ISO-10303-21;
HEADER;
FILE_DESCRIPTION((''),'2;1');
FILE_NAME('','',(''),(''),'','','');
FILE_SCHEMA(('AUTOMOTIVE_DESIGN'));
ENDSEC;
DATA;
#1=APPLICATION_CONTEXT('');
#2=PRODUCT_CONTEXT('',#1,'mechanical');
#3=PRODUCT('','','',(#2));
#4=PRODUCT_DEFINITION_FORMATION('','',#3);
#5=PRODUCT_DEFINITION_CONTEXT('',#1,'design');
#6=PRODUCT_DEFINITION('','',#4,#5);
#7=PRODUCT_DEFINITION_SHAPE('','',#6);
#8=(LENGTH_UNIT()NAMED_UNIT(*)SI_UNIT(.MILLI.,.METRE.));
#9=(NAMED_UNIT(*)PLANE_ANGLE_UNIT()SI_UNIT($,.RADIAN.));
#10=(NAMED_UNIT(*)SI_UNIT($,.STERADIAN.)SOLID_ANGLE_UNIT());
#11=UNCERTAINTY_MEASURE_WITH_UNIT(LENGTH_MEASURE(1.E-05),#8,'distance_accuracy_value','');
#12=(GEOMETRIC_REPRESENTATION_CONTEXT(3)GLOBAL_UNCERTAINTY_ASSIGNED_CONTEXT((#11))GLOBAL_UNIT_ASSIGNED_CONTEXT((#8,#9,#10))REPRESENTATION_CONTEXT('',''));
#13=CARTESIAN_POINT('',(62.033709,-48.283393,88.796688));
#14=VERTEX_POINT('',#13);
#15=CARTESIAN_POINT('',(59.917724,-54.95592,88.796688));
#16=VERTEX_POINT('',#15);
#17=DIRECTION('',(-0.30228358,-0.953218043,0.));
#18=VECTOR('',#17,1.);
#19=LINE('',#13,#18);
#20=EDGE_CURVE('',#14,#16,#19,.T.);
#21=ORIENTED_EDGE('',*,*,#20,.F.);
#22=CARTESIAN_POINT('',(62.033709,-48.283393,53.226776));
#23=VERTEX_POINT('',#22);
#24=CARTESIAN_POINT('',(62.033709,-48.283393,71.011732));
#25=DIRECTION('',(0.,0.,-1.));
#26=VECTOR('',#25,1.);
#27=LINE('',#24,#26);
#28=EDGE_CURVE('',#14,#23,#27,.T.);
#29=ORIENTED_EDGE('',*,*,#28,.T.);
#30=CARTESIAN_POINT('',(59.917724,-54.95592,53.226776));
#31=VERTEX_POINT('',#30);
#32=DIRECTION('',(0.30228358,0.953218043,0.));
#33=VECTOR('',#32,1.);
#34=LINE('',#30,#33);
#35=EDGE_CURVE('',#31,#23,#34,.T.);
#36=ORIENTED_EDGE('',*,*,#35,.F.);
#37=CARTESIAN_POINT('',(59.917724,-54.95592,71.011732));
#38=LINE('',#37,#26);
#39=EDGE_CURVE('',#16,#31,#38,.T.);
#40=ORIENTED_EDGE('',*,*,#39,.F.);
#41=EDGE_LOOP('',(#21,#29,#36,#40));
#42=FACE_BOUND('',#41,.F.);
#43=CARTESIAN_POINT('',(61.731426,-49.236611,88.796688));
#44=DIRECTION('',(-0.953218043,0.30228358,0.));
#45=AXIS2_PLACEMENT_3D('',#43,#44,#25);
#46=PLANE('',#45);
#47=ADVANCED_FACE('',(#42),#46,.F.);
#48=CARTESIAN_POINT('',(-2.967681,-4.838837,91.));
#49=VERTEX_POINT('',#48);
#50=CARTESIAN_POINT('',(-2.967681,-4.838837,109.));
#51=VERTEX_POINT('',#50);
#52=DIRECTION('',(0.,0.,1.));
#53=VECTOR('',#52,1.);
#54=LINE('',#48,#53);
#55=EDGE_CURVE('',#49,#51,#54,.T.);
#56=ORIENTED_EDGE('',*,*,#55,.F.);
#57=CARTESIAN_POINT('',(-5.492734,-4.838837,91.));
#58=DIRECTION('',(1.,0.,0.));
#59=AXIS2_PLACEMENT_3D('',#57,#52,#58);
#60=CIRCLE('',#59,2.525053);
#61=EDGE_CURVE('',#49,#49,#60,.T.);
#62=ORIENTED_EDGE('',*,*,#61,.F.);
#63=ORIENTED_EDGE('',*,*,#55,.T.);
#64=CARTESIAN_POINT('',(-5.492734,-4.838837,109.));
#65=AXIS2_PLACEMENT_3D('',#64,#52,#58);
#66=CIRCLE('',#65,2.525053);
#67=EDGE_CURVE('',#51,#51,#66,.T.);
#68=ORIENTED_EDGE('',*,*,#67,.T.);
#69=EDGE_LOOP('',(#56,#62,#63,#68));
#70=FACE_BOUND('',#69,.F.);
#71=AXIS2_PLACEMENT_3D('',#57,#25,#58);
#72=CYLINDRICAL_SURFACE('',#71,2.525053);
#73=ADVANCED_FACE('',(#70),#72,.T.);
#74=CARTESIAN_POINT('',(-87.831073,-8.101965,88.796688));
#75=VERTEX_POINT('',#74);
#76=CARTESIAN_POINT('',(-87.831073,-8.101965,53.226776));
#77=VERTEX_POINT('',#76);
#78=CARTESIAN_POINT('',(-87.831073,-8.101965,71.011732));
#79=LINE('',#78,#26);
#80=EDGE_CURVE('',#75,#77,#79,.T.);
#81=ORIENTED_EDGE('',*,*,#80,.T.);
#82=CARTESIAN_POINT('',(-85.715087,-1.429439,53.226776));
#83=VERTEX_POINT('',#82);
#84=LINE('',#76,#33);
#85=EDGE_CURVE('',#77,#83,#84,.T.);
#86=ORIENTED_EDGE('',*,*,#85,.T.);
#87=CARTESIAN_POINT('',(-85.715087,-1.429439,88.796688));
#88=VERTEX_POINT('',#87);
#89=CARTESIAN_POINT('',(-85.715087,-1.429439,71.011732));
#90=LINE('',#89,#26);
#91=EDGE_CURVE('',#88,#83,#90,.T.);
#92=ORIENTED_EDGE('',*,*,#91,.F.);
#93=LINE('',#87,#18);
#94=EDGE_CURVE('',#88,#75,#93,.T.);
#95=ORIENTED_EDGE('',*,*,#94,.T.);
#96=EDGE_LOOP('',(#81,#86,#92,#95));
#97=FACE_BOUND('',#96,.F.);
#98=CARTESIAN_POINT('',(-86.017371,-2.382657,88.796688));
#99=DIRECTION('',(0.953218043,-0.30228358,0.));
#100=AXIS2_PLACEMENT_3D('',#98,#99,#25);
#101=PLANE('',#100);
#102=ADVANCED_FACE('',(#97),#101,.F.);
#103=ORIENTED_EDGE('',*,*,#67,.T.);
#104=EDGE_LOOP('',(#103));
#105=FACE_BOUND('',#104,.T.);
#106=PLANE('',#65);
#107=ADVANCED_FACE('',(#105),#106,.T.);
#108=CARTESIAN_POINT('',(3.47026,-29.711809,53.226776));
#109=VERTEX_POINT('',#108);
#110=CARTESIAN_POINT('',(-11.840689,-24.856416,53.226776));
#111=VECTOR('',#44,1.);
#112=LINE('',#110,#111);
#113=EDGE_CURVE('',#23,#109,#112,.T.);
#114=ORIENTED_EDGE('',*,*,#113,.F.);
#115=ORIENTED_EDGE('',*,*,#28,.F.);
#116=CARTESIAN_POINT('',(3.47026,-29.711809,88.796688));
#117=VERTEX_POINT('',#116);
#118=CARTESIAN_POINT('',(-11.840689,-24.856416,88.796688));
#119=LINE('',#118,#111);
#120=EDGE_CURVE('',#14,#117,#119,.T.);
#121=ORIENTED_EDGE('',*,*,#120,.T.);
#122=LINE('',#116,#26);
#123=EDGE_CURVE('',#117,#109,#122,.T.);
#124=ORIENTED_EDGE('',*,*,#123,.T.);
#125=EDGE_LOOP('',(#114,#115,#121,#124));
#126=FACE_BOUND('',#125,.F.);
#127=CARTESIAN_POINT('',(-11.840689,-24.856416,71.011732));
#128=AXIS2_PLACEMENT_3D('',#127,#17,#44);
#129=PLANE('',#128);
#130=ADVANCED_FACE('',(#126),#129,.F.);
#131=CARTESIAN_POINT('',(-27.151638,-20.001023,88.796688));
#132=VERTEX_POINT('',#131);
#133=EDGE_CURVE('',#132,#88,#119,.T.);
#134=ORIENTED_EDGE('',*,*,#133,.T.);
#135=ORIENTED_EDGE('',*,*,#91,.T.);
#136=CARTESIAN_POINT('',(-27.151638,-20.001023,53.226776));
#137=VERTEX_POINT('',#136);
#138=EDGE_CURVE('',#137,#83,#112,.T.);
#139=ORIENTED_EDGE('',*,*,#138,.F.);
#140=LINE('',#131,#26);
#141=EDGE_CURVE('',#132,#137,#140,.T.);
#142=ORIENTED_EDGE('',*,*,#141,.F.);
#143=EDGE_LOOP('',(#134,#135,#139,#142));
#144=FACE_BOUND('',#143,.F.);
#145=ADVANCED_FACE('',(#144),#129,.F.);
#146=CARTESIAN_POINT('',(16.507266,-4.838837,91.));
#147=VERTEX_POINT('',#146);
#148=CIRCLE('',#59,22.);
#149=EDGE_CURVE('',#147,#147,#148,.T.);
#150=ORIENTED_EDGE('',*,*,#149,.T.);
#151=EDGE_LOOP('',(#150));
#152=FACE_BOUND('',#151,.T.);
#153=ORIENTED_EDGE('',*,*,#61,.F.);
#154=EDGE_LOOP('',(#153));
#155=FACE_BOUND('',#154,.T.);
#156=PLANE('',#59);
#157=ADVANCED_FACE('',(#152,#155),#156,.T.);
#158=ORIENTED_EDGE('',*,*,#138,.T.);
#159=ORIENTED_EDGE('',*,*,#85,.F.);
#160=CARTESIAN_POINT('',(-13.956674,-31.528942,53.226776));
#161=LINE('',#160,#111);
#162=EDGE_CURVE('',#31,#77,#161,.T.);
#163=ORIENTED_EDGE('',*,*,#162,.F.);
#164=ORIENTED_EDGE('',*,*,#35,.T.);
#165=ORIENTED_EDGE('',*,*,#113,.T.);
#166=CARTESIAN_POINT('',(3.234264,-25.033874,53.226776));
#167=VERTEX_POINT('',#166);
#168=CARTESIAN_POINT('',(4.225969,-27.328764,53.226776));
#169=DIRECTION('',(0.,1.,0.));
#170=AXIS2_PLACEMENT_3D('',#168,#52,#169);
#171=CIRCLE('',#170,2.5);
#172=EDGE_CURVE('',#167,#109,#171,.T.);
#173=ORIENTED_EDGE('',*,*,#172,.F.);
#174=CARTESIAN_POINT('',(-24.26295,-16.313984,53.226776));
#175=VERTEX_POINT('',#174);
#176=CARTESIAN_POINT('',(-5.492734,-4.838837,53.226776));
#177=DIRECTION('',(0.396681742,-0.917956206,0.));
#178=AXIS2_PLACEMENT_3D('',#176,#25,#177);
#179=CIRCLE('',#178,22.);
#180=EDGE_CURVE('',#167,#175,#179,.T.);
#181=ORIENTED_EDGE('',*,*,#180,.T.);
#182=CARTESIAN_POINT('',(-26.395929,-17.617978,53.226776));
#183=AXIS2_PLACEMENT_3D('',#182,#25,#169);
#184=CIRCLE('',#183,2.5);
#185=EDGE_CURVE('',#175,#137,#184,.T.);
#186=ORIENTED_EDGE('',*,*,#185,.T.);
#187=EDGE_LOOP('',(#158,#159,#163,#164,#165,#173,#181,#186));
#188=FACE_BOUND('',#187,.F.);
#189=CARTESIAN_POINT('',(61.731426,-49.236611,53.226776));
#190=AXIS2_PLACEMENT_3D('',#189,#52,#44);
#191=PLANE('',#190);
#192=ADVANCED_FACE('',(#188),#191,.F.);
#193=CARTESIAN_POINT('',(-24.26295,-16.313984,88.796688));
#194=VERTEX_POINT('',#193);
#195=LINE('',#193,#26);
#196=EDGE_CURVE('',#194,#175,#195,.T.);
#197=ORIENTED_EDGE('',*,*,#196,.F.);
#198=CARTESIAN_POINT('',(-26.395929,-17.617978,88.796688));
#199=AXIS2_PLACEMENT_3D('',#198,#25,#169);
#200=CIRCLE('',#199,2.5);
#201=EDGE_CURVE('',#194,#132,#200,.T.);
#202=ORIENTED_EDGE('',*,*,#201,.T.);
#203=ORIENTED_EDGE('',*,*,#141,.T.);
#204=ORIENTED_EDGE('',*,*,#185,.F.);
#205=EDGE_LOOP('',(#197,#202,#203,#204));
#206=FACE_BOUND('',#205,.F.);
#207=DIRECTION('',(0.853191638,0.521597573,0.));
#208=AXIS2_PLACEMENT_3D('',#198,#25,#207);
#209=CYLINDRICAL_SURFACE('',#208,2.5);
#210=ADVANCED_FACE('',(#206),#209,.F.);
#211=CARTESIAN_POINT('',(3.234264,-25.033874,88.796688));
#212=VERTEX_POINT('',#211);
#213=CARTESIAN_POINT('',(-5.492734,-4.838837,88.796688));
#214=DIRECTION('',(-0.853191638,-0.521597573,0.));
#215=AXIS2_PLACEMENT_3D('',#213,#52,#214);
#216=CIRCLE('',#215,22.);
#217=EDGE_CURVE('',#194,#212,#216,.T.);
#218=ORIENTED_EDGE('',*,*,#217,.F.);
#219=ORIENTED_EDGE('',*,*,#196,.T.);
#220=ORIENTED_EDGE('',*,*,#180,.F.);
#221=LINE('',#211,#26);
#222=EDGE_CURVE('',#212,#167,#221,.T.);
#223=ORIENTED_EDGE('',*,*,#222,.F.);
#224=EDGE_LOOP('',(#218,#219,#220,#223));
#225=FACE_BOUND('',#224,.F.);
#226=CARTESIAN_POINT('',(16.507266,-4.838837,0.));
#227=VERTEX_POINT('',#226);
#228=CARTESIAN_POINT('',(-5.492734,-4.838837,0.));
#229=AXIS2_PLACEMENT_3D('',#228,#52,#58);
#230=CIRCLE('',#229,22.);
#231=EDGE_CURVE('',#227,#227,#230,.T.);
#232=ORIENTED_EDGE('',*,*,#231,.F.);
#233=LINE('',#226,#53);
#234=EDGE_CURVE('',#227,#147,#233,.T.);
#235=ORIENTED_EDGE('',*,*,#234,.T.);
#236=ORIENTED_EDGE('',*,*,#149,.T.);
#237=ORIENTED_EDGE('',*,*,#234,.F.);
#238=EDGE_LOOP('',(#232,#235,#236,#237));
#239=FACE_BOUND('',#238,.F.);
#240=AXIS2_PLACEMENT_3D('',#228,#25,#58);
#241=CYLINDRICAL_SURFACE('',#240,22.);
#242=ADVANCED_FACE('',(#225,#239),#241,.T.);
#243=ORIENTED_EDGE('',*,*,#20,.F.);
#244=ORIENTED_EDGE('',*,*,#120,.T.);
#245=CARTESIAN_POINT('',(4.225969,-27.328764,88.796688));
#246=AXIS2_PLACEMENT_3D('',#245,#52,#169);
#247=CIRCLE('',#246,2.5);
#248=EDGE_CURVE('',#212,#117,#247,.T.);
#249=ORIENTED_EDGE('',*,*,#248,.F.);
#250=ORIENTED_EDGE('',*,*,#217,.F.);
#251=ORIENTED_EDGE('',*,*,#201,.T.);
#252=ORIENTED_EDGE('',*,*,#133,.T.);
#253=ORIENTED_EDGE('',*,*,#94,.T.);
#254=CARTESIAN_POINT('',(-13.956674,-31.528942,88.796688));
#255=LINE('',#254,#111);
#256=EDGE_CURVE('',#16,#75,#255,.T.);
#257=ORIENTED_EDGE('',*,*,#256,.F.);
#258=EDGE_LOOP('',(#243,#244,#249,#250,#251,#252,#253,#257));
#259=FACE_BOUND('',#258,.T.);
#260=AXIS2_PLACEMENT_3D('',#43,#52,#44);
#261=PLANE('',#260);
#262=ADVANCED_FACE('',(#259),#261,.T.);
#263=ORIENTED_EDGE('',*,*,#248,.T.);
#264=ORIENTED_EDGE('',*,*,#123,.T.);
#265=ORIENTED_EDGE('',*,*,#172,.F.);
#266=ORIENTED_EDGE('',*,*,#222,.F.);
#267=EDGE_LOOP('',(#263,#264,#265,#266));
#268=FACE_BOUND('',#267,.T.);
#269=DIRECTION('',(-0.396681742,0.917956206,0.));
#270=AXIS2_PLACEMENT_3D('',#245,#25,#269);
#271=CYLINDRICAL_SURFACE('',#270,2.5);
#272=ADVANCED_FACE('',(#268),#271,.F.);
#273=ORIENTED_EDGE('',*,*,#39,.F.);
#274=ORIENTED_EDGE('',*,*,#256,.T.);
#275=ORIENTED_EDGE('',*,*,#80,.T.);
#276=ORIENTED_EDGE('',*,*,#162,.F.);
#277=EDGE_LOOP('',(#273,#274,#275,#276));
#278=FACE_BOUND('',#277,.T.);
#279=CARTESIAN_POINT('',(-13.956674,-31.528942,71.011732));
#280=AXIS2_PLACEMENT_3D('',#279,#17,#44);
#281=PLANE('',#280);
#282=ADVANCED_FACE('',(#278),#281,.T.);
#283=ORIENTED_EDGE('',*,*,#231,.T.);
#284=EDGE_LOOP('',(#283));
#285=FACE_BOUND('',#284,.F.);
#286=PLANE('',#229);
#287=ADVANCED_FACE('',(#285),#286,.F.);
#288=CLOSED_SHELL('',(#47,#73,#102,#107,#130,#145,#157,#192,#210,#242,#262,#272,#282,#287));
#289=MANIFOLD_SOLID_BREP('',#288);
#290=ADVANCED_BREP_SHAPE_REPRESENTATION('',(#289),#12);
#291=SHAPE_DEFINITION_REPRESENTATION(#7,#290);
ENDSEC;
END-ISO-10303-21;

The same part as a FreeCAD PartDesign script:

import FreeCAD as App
import Part
import Sketcher


def edges_at(feature, points):
    """Names of the edges that pass closest to the given points."""
    edges = feature.Shape.Edges
    near = lambda p: min(range(len(edges)), key=lambda i: edges[i].distToShape(Part.Vertex(*p))[0])
    return sorted({f"Edge{near(p) + 1}" for p in points})


def add_polygon(sketch, points):
    """Adds a closed chain of lines whose ends are joined by coincident constraints."""
    first, n = sketch.GeometryCount, len(points)
    for a, b in zip(points, points[1:] + points[:1]):
        sketch.addGeometry(Part.LineSegment(App.Vector(*a, 0), App.Vector(*b, 0)), False)
    for i in range(n):
        sketch.addConstraint(Sketcher.Constraint("Coincident", first + i, 2, first + (i + 1) % n, 1))

doc = App.newDocument("Part")
body = doc.addObject("PartDesign::Body", "Body")

# Sketch on XY plane
sketch1 = body.newObject("Sketcher::SketchObject", "Sketch")
sketch1.AttachmentSupport = (doc.getObject("XY_Plane"), [""])
sketch1.MapMode = "FlatFace"
sketch1.addGeometry(Part.Circle(App.Vector(-5.492734, -4.838837, 0), App.Vector(0, 0, 1), 22), False)
sketch1.addConstraint([
    Sketcher.Constraint("Diameter", 0, 44.0),
    Sketcher.Constraint("DistanceX", 0, 3, -1, 1, 5.492734),
    Sketcher.Constraint("DistanceY", 0, 3, -1, 1, 4.838837),
])
pad1 = body.newObject("PartDesign::Pad", "Pad")
pad1.Profile = sketch1
pad1.Length = 91

# Sketch on XY plane
sketch2 = body.newObject("Sketcher::SketchObject", "Sketch001")
sketch2.AttachmentSupport = (doc.getObject("XY_Plane"), [""])
sketch2.MapMode = "FlatFace"
sketch2.AttachmentOffset = App.Placement(App.Vector(0, 0, 91), App.Rotation())
sketch2.addGeometry(Part.Circle(App.Vector(-5.492734, -4.838837, 0), App.Vector(0, 0, 1), 2.525053), False)
sketch2.addConstraint([
    Sketcher.Constraint("Diameter", 0, 5.050105),
    Sketcher.Constraint("DistanceX", 0, 3, -1, 1, 5.492734),
    Sketcher.Constraint("DistanceY", 0, 3, -1, 1, 4.838837),
])
pad2 = body.newObject("PartDesign::Pad", "Pad001")
pad2.Profile = sketch2
pad2.Length = 18

# Sketch on an angled plane
sketch3 = body.newObject("Sketcher::SketchObject", "Sketch002")
sketch3.Placement = App.Placement(App.Vector(-12.142973, -25.809634, 91), App.Rotation(App.Vector(-0.953218043, 0.30228358, 0), App.Vector(0, 0, -1), App.Vector(-0.30228358, -0.953218043, 0), "ZXY"))
add_polygon(sketch3, [(-77.5, 37.773224), (-77.5, 2.203312), (77.5, 2.203312), (77.5, 37.773224)])  # lines 0-3
sketch3.addConstraint([
    Sketcher.Constraint("Vertical", 0),
    Sketcher.Constraint("Horizontal", 1),
    Sketcher.Constraint("Vertical", 2),
    Sketcher.Constraint("Horizontal", 3),
    Sketcher.Constraint("DistanceX", 1, 1, 1, 2, 155.0),
    Sketcher.Constraint("DistanceX", 0, 2, -1, 1, 77.5),
    Sketcher.Constraint("DistanceY", 0, 2, 0, 1, 35.569912),
    Sketcher.Constraint("DistanceY", -1, 1, 0, 2, 2.203312),
])
pad3 = body.newObject("PartDesign::Pad", "Pad002")
pad3.Profile = sketch3
pad3.Type = "TwoLengths"
pad3.Length = 6
pad3.Length2 = 1
doc.recompute()

fillet = body.newObject("PartDesign::Fillet", "Fillet")
fillet.Base = (pad3, edges_at(pad3, [(-5.59, -26.839, 71.012)]))
fillet.Radius = 2.5
doc.recompute()

fillet2 = body.newObject("PartDesign::Fillet", "Fillet001")
fillet2.Base = (fillet, edges_at(fillet, [(-18.091, -22.874, 71.012)]))
fillet2.Radius = 2.5

doc.recompute()
